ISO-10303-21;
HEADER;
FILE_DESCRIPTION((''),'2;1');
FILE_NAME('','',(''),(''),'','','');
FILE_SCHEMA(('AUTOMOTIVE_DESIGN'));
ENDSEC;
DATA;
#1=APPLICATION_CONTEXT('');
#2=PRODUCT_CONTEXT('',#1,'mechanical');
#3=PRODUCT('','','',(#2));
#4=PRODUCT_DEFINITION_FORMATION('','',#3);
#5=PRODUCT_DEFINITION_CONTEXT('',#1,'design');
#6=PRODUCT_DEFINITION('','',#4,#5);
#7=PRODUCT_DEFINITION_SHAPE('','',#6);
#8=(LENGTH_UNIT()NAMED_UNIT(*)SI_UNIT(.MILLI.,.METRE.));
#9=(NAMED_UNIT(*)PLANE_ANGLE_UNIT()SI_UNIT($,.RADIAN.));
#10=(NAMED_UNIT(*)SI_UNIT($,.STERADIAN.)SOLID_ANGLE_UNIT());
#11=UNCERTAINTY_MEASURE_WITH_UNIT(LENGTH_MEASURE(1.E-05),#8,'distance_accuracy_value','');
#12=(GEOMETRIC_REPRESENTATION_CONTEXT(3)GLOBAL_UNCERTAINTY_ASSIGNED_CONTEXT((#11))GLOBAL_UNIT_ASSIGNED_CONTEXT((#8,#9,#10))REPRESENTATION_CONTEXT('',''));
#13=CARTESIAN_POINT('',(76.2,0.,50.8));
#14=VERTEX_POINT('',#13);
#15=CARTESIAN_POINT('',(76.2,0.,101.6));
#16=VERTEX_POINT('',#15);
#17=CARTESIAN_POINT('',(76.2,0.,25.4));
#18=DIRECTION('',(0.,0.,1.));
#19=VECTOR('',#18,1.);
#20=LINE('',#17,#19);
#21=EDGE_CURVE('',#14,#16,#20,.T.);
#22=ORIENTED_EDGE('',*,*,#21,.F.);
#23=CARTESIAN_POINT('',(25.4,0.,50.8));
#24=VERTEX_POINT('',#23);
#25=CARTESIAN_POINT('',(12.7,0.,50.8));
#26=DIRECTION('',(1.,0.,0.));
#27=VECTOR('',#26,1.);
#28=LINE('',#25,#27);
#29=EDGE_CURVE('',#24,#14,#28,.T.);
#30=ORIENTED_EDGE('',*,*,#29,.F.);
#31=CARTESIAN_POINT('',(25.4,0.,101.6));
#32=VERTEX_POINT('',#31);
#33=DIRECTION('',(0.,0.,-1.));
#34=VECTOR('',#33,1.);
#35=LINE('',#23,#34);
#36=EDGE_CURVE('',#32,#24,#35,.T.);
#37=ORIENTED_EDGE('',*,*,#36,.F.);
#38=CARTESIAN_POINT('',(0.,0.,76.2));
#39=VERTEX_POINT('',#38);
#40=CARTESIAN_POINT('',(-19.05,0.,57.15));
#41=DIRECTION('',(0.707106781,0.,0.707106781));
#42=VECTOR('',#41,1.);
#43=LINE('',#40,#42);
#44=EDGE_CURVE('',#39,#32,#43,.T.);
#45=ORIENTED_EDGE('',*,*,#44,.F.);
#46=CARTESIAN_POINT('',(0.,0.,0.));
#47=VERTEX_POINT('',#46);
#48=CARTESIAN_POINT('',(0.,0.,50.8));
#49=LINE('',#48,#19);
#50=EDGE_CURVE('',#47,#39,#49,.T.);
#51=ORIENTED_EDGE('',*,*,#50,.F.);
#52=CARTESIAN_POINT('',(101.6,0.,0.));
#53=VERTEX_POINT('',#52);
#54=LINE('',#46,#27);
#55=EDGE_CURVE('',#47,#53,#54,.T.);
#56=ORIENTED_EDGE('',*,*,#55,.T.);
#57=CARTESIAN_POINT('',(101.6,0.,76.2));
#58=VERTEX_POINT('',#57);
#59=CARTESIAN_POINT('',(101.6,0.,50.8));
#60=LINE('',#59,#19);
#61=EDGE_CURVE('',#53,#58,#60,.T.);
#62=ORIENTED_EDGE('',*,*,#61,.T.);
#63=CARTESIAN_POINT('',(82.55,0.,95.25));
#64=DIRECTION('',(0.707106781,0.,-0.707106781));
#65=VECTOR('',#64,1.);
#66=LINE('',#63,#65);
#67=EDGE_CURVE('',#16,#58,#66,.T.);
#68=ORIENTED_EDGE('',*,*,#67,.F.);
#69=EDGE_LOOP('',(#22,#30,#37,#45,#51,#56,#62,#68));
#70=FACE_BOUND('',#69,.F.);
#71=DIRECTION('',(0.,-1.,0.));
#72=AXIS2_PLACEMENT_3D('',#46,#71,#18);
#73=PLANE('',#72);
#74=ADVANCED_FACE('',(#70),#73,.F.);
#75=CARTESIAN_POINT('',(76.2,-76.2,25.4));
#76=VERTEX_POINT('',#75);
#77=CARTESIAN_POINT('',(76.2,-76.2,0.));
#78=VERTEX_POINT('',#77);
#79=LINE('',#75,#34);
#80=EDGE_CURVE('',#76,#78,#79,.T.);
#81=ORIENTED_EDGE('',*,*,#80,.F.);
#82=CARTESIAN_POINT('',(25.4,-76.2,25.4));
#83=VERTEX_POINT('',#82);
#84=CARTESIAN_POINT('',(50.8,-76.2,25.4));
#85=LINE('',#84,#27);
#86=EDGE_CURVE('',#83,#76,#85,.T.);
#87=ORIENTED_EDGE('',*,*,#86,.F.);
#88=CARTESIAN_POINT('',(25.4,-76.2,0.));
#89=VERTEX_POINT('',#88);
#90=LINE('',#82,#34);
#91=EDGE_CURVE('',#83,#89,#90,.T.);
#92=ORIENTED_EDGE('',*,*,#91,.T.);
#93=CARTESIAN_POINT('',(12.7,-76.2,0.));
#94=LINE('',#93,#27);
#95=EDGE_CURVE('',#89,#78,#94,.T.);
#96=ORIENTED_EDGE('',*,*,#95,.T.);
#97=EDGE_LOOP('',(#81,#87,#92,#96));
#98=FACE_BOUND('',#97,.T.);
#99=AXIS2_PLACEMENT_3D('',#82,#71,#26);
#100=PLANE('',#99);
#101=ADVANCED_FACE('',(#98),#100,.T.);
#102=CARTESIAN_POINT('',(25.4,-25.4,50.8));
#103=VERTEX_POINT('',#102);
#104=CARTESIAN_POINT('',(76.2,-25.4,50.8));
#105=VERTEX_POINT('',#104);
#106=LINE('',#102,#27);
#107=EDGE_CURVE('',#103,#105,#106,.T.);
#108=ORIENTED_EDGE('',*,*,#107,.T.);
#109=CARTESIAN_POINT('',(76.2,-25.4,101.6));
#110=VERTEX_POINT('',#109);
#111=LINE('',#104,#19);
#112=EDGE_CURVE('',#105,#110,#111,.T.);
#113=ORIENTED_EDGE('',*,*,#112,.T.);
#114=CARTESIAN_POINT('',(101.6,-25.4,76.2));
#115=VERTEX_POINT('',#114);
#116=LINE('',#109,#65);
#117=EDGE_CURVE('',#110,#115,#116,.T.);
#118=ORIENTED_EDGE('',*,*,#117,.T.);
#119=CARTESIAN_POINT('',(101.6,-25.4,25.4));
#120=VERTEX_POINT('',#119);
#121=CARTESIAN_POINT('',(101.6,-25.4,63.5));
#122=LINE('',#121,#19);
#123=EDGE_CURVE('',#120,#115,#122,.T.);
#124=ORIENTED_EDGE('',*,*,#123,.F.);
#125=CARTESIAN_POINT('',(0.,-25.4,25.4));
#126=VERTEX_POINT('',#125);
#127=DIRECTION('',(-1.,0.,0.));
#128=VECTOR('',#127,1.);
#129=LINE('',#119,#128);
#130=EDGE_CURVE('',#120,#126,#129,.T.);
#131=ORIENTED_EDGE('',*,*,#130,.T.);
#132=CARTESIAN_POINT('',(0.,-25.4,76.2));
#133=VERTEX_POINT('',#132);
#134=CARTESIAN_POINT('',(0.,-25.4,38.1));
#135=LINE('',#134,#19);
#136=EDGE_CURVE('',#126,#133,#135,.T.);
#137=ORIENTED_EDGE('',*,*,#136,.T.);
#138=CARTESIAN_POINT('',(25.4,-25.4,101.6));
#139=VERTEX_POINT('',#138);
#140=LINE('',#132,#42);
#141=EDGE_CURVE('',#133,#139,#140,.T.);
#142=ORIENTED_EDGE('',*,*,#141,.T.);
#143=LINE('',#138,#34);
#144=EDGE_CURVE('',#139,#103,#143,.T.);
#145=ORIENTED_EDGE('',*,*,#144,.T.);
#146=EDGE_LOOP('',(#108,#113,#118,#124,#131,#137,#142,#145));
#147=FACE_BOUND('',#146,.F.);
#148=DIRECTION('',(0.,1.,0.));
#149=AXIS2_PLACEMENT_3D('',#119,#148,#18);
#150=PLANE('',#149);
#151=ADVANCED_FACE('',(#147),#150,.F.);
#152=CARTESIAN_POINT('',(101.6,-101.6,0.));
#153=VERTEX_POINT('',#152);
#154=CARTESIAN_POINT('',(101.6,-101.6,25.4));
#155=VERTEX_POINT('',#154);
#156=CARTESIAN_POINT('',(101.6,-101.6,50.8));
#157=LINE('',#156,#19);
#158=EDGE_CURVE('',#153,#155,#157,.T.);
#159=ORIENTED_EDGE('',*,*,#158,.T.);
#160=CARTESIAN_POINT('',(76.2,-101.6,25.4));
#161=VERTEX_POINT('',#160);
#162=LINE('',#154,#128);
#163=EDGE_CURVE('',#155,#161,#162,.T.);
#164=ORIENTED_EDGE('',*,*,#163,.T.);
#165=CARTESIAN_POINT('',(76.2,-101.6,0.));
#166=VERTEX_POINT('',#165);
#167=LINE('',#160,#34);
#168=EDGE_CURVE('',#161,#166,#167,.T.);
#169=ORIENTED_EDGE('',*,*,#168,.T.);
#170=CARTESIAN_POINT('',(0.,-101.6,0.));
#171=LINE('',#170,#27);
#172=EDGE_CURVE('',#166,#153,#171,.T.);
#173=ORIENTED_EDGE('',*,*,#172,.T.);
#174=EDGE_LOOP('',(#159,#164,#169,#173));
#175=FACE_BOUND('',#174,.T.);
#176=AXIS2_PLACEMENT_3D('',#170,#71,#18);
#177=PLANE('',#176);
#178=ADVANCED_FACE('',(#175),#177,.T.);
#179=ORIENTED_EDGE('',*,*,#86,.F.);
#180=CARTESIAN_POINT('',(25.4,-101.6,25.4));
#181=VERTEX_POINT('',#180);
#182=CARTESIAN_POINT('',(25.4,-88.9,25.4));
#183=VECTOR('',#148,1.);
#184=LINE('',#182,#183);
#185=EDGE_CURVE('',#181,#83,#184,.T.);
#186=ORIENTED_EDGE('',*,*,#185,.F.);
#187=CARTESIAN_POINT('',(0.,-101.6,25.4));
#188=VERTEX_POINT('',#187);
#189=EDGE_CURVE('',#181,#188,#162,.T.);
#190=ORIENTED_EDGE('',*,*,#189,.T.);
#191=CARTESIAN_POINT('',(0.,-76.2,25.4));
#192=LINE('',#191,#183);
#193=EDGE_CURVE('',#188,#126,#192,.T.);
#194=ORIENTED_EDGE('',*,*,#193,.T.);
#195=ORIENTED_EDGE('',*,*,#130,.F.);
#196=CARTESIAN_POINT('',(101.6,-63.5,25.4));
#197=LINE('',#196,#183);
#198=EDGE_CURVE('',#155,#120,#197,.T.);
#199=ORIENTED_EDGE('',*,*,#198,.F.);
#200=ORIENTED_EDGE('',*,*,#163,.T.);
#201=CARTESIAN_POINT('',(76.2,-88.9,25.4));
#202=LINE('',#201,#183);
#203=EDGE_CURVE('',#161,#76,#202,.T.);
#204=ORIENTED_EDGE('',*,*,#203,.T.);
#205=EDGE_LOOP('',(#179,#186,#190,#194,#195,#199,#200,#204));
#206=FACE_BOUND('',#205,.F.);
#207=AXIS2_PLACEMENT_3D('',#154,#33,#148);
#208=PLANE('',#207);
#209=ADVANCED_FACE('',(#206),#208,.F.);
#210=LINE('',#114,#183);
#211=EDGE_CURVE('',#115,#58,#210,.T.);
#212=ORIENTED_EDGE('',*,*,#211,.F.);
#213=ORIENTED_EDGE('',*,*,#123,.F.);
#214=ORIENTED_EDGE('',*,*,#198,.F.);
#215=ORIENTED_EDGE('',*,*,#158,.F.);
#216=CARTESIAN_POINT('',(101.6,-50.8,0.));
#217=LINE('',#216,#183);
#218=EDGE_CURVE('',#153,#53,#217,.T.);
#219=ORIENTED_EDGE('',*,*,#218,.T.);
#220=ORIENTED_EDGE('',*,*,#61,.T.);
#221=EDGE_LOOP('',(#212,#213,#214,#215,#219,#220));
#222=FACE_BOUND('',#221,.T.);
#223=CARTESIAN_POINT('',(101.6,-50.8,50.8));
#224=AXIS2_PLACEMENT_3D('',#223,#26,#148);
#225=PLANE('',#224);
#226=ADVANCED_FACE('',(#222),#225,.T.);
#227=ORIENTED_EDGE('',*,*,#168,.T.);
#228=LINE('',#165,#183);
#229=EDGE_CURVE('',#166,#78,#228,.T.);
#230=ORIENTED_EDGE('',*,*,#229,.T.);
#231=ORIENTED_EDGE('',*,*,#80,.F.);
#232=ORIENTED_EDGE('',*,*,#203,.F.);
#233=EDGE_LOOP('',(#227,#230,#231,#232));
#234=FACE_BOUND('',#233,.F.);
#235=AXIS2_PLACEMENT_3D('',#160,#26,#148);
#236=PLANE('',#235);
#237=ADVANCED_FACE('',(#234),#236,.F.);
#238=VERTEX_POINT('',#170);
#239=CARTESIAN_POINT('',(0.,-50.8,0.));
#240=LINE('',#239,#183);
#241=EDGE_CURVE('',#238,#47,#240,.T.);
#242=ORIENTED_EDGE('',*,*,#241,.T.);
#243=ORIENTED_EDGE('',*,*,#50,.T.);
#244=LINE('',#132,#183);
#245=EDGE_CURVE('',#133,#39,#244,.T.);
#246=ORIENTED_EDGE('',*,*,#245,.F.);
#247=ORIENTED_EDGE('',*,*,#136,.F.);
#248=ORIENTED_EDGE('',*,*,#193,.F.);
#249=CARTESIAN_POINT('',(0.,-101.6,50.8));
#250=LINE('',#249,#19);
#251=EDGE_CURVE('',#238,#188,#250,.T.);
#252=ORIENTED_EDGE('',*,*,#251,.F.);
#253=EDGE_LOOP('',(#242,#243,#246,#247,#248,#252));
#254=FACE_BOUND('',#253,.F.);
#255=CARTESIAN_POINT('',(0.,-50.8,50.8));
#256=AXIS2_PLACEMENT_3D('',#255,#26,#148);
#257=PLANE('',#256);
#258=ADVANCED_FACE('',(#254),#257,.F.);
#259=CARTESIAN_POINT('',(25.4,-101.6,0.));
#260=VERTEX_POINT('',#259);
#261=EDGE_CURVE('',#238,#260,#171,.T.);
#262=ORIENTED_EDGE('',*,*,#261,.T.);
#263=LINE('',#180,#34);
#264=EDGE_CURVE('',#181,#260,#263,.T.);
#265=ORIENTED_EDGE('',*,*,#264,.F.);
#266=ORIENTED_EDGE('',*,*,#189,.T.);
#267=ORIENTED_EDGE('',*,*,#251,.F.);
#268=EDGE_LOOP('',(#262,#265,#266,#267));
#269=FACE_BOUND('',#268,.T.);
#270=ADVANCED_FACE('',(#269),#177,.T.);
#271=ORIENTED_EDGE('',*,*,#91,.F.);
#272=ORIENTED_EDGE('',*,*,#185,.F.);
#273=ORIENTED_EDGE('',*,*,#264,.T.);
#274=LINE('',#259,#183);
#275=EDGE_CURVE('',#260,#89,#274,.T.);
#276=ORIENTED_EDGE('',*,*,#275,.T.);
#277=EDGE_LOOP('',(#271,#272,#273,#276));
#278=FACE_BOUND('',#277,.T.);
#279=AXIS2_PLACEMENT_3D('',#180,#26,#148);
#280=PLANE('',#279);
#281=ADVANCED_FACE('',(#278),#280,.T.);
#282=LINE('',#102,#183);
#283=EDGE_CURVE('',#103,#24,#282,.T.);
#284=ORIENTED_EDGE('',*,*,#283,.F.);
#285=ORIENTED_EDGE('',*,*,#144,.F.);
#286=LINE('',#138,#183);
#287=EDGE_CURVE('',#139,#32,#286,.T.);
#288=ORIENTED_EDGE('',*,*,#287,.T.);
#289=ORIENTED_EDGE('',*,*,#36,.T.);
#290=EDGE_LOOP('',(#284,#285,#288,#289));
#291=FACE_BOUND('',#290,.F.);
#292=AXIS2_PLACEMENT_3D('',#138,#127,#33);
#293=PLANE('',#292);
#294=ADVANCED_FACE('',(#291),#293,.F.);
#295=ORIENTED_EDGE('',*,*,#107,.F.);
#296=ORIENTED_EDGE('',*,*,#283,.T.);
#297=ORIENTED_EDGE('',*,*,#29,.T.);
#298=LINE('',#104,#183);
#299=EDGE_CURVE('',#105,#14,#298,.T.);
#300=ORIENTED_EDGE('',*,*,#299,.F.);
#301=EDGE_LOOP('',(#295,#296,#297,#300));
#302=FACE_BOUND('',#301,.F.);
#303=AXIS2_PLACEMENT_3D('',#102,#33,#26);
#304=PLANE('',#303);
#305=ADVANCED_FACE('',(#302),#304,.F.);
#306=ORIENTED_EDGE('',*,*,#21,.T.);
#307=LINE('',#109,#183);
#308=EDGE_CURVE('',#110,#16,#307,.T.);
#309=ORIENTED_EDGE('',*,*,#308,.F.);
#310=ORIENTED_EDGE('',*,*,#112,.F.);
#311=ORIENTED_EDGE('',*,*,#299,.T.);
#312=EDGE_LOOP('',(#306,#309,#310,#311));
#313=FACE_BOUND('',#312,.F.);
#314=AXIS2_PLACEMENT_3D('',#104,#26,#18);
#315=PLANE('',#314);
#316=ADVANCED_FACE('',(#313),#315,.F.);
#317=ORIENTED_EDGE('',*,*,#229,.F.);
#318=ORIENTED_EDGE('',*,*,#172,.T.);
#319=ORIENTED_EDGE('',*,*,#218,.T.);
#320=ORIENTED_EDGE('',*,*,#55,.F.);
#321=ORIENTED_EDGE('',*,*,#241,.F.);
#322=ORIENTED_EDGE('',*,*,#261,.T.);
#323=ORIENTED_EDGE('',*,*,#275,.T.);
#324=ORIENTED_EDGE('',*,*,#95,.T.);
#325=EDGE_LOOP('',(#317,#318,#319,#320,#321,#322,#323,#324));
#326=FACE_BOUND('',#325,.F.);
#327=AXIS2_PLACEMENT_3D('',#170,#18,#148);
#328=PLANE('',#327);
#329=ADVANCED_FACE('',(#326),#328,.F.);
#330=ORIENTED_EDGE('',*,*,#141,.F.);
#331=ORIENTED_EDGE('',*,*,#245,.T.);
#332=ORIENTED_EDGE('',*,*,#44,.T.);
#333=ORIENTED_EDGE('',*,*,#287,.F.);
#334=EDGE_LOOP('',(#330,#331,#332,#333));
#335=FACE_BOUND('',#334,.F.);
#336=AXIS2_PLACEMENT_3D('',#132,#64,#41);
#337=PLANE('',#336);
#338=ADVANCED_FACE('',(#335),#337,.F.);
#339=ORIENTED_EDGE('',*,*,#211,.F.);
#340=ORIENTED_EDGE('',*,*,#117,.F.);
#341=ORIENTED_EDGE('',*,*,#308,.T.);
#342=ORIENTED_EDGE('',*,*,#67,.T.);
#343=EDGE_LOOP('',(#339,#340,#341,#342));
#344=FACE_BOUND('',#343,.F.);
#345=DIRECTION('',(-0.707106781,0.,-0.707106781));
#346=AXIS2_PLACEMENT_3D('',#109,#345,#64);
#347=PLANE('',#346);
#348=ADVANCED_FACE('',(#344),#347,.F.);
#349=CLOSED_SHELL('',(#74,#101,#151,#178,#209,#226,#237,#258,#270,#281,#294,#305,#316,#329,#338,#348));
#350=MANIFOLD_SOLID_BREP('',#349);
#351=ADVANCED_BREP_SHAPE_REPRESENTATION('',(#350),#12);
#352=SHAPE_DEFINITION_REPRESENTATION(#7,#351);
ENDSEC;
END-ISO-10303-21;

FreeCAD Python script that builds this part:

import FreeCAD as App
import Part
import Sketcher
Q = App.Units.Quantity

doc = App.newDocument("Part")
body = doc.addObject("PartDesign::Body", "Body")

sketch1 = body.newObject("Sketcher::SketchObject", "Sketch")
sketch1.AttachmentSupport = (doc.getObject("YZ_Plane"), [""])
sketch1.MapMode = "FlatFace"
sketch1.addGeometry(Part.LineSegment(App.Vector(-102, 102, 0), App.Vector(-102, 0, 0)), False)
sketch1.addGeometry(Part.LineSegment(App.Vector(-102, 0, 0), App.Vector(0, 0, 0)), False)
sketch1.addGeometry(Part.LineSegment(App.Vector(0, 0, 0), App.Vector(0, 102, 0)), False)
sketch1.addGeometry(Part.LineSegment(App.Vector(0, 102, 0), App.Vector(-102, 102, 0)), False)
sketch1.addConstraint(Sketcher.Constraint("Coincident", 0, 2, 1, 1))
sketch1.addConstraint(Sketcher.Constraint("Coincident", 1, 2, 2, 1))
sketch1.addConstraint(Sketcher.Constraint("Coincident", 2, 2, 3, 1))
sketch1.addConstraint(Sketcher.Constraint("Coincident", 3, 2, 0, 1))
sketch1.addConstraint(Sketcher.Constraint("Vertical", 0))
sketch1.addConstraint(Sketcher.Constraint("Horizontal", 1))
sketch1.addConstraint(Sketcher.Constraint("Vertical", 2))
sketch1.addConstraint(Sketcher.Constraint("Horizontal", 3))
sketch1.addConstraint(Sketcher.Constraint("Coincident", 1, 2, -1, 1))
sketch1.addConstraint(Sketcher.Constraint("Equal", 3, 0))
sketch1.addConstraint(Sketcher.Constraint("DistanceX", 1, 1, 1, 2, Q("4 in")))
pad1 = body.newObject("PartDesign::Pad", "Pad")
pad1.Profile = sketch1
pad1.Length = Q("4 in")

sketch2 = body.newObject("Sketcher::SketchObject", "Sketch001")
sketch2.AttachmentSupport = (doc.getObject("YZ_Plane"), [""])
sketch2.MapMode = "FlatFace"
sketch2.AttachmentOffset = App.Placement(App.Vector(0, 0, 4 * 25.4), App.Rotation())
sketch2.addGeometry(Part.LineSegment(App.Vector(-102, 102, 0), App.Vector(-102, 25, 0)), False)
sketch2.addGeometry(Part.LineSegment(App.Vector(-102, 25, 0), App.Vector(-25, 25, 0)), False)
sketch2.addGeometry(Part.LineSegment(App.Vector(-25, 25, 0), App.Vector(-25, 102, 0)), False)
sketch2.addGeometry(Part.LineSegment(App.Vector(-25, 102, 0), App.Vector(-102, 102, 0)), False)
sketch2.addConstraint(Sketcher.Constraint("Coincident", 0, 2, 1, 1))
sketch2.addConstraint(Sketcher.Constraint("Coincident", 1, 2, 2, 1))
sketch2.addConstraint(Sketcher.Constraint("Coincident", 2, 2, 3, 1))
sketch2.addConstraint(Sketcher.Constraint("Coincident", 3, 2, 0, 1))
sketch2.addConstraint(Sketcher.Constraint("Vertical", 0))
sketch2.addConstraint(Sketcher.Constraint("Horizontal", 1))
sketch2.addConstraint(Sketcher.Constraint("Vertical", 2))
sketch2.addConstraint(Sketcher.Constraint("Horizontal", 3))
sketch2.addConstraint(Sketcher.Constraint("Equal", 3, 0))
sketch2.addConstraint(Sketcher.Constraint("DistanceX", 1, 1, 1, 2, Q("3 in")))
sketch2.addConstraint(Sketcher.Constraint("DistanceX", 0, 2, -1, 1, Q("4 in")))
sketch2.addConstraint(Sketcher.Constraint("DistanceY", -1, 1, 0, 2, Q("1 in")))
pocket1 = body.newObject("PartDesign::Pocket", "Pocket")
pocket1.Profile = sketch2
pocket1.Length = Q("6.33 in")

sketch3 = body.newObject("Sketcher::SketchObject", "Sketch002")
sketch3.AttachmentSupport = (doc.getObject("XZ_Plane"), [""])
sketch3.MapMode = "FlatFace"
sketch3.AttachmentOffset = App.Placement(App.Vector(0, 0, 1 * 25.4), App.Rotation())
sketch3.addGeometry(Part.LineSegment(App.Vector(76, 102, 0), App.Vector(25, 102, 0)), False)
sketch3.addGeometry(Part.LineSegment(App.Vector(25, 102, 0), App.Vector(25, 51, 0)), False)
sketch3.addGeometry(Part.LineSegment(App.Vector(25, 51, 0), App.Vector(76, 51, 0)), False)
sketch3.addGeometry(Part.LineSegment(App.Vector(76, 51, 0), App.Vector(76, 102, 0)), False)
sketch3.addConstraint(Sketcher.Constraint("Coincident", 0, 2, 1, 1))
sketch3.addConstraint(Sketcher.Constraint("Coincident", 1, 2, 2, 1))
sketch3.addConstraint(Sketcher.Constraint("Coincident", 2, 2, 3, 1))
sketch3.addConstraint(Sketcher.Constraint("Coincident", 3, 2, 0, 1))
sketch3.addConstraint(Sketcher.Constraint("Horizontal", 0))
sketch3.addConstraint(Sketcher.Constraint("Vertical", 1))
sketch3.addConstraint(Sketcher.Constraint("Horizontal", 2))
sketch3.addConstraint(Sketcher.Constraint("Vertical", 3))
sketch3.addConstraint(Sketcher.Constraint("Equal", 2, 1))
sketch3.addConstraint(Sketcher.Constraint("DistanceX", 0, 2, 0, 1, Q("2 in")))
sketch3.addConstraint(Sketcher.Constraint("DistanceX", -1, 1, 0, 2, Q("1 in")))
sketch3.addConstraint(Sketcher.Constraint("DistanceY", -1, 1, 0, 2, Q("4 in")))
pocket2 = body.newObject("PartDesign::Pocket", "Pocket001")
pocket2.Profile = sketch3
pocket2.Length = Q("2.37 in")

sketch4 = body.newObject("Sketcher::SketchObject", "Sketch003")
sketch4.AttachmentSupport = (doc.getObject("XZ_Plane"), [""])
sketch4.MapMode = "FlatFace"
sketch4.AttachmentOffset = App.Placement(App.Vector(0, 0, 1 * 25.4), App.Rotation())
sketch4.addGeometry(Part.LineSegment(App.Vector(76, 102, 0), App.Vector(102, 76, 0)), False)
sketch4.addGeometry(Part.LineSegment(App.Vector(102, 76, 0), App.Vector(102, 102, 0)), False)
sketch4.addGeometry(Part.LineSegment(App.Vector(102, 102, 0), App.Vector(76, 102, 0)), False)
sketch4.addGeometry(Part.LineSegment(App.Vector(0, 76, 0), App.Vector(25, 102, 0)), False)
sketch4.addGeometry(Part.LineSegment(App.Vector(25, 102, 0), App.Vector(0, 102, 0)), False)
sketch4.addGeometry(Part.LineSegment(App.Vector(0, 102, 0), App.Vector(0, 76, 0)), False)
sketch4.addConstraint(Sketcher.Constraint("Coincident", 0, 2, 1, 1))
sketch4.addConstraint(Sketcher.Constraint("Coincident", 1, 2, 2, 1))
sketch4.addConstraint(Sketcher.Constraint("Coincident", 2, 2, 0, 1))
sketch4.addConstraint(Sketcher.Constraint("Coincident", 3, 2, 4, 1))
sketch4.addConstraint(Sketcher.Constraint("Coincident", 4, 2, 5, 1))
sketch4.addConstraint(Sketcher.Constraint("Coincident", 5, 2, 3, 1))
sketch4.addConstraint(Sketcher.Constraint("Vertical", 1))
sketch4.addConstraint(Sketcher.Constraint("Horizontal", 2))
sketch4.addConstraint(Sketcher.Constraint("Horizontal", 4))
sketch4.addConstraint(Sketcher.Constraint("Vertical", 5))
sketch4.addConstraint(Sketcher.Constraint("PointOnObject", 4, 2, -2))
sketch4.addConstraint(Sketcher.Constraint("Perpendicular", 0, 3))
sketch4.addConstraint(Sketcher.Constraint("Horizontal", 2, 2, 3, 2))
sketch4.addConstraint(Sketcher.Constraint("Horizontal", 0, 2, 5, 2))
sketch4.addConstraint(Sketcher.Constraint("Equal", 2, 4))
sketch4.addConstraint(Sketcher.Constraint("DistanceX", 2, 2, 2, 1, Q("1 in")))
sketch4.addConstraint(Sketcher.Constraint("DistanceX", -1, 1, 0, 2, Q("4 in")))
sketch4.addConstraint(Sketcher.Constraint("DistanceY", -1, 1, 0, 2, Q("3 in")))
pocket3 = body.newObject("PartDesign::Pocket", "Pocket002")
pocket3.Profile = sketch4
pocket3.Length = Q("2.63 in")

sketch5 = body.newObject("Sketcher::SketchObject", "Sketch004")
sketch5.AttachmentSupport = (doc.getObject("XY_Plane"), [""])
sketch5.MapMode = "FlatFace"
sketch5.AttachmentOffset = App.Placement(App.Vector(0, 0, 1 * 25.4), App.Rotation())
sketch5.addGeometry(Part.LineSegment(App.Vector(25, -76, 0), App.Vector(25, -102, 0)), False)
sketch5.addGeometry(Part.LineSegment(App.Vector(25, -102, 0), App.Vector(76, -102, 0)), False)
sketch5.addGeometry(Part.LineSegment(App.Vector(76, -102, 0), App.Vector(76, -76, 0)), False)
sketch5.addGeometry(Part.LineSegment(App.Vector(76, -76, 0), App.Vector(25, -76, 0)), False)
sketch5.addConstraint(Sketcher.Constraint("Coincident", 0, 2, 1, 1))
sketch5.addConstraint(Sketcher.Constraint("Coincident", 1, 2, 2, 1))
sketch5.addConstraint(Sketcher.Constraint("Coincident", 2, 2, 3, 1))
sketch5.addConstraint(Sketcher.Constraint("Coincident", 3, 2, 0, 1))
sketch5.addConstraint(Sketcher.Constraint("Vertical", 0))
sketch5.addConstraint(Sketcher.Constraint("Horizontal", 1))
sketch5.addConstraint(Sketcher.Constraint("Vertical", 2))
sketch5.addConstraint(Sketcher.Constraint("Horizontal", 3))
sketch5.addConstraint(Sketcher.Constraint("DistanceX", 1, 1, 1, 2, Q("2 in")))
sketch5.addConstraint(Sketcher.Constraint("DistanceY", 0, 2, 0, 1, Q("1 in")))
sketch5.addConstraint(Sketcher.Constraint("DistanceX", -1, 1, 0, 2, Q("1 in")))
sketch5.addConstraint(Sketcher.Constraint("DistanceY", 0, 2, -1, 1, Q("4 in")))
pocket4 = body.newObject("PartDesign::Pocket", "Pocket003")
pocket4.Profile = sketch5
pocket4.Length = Q("3.09 in")

doc.recompute()
